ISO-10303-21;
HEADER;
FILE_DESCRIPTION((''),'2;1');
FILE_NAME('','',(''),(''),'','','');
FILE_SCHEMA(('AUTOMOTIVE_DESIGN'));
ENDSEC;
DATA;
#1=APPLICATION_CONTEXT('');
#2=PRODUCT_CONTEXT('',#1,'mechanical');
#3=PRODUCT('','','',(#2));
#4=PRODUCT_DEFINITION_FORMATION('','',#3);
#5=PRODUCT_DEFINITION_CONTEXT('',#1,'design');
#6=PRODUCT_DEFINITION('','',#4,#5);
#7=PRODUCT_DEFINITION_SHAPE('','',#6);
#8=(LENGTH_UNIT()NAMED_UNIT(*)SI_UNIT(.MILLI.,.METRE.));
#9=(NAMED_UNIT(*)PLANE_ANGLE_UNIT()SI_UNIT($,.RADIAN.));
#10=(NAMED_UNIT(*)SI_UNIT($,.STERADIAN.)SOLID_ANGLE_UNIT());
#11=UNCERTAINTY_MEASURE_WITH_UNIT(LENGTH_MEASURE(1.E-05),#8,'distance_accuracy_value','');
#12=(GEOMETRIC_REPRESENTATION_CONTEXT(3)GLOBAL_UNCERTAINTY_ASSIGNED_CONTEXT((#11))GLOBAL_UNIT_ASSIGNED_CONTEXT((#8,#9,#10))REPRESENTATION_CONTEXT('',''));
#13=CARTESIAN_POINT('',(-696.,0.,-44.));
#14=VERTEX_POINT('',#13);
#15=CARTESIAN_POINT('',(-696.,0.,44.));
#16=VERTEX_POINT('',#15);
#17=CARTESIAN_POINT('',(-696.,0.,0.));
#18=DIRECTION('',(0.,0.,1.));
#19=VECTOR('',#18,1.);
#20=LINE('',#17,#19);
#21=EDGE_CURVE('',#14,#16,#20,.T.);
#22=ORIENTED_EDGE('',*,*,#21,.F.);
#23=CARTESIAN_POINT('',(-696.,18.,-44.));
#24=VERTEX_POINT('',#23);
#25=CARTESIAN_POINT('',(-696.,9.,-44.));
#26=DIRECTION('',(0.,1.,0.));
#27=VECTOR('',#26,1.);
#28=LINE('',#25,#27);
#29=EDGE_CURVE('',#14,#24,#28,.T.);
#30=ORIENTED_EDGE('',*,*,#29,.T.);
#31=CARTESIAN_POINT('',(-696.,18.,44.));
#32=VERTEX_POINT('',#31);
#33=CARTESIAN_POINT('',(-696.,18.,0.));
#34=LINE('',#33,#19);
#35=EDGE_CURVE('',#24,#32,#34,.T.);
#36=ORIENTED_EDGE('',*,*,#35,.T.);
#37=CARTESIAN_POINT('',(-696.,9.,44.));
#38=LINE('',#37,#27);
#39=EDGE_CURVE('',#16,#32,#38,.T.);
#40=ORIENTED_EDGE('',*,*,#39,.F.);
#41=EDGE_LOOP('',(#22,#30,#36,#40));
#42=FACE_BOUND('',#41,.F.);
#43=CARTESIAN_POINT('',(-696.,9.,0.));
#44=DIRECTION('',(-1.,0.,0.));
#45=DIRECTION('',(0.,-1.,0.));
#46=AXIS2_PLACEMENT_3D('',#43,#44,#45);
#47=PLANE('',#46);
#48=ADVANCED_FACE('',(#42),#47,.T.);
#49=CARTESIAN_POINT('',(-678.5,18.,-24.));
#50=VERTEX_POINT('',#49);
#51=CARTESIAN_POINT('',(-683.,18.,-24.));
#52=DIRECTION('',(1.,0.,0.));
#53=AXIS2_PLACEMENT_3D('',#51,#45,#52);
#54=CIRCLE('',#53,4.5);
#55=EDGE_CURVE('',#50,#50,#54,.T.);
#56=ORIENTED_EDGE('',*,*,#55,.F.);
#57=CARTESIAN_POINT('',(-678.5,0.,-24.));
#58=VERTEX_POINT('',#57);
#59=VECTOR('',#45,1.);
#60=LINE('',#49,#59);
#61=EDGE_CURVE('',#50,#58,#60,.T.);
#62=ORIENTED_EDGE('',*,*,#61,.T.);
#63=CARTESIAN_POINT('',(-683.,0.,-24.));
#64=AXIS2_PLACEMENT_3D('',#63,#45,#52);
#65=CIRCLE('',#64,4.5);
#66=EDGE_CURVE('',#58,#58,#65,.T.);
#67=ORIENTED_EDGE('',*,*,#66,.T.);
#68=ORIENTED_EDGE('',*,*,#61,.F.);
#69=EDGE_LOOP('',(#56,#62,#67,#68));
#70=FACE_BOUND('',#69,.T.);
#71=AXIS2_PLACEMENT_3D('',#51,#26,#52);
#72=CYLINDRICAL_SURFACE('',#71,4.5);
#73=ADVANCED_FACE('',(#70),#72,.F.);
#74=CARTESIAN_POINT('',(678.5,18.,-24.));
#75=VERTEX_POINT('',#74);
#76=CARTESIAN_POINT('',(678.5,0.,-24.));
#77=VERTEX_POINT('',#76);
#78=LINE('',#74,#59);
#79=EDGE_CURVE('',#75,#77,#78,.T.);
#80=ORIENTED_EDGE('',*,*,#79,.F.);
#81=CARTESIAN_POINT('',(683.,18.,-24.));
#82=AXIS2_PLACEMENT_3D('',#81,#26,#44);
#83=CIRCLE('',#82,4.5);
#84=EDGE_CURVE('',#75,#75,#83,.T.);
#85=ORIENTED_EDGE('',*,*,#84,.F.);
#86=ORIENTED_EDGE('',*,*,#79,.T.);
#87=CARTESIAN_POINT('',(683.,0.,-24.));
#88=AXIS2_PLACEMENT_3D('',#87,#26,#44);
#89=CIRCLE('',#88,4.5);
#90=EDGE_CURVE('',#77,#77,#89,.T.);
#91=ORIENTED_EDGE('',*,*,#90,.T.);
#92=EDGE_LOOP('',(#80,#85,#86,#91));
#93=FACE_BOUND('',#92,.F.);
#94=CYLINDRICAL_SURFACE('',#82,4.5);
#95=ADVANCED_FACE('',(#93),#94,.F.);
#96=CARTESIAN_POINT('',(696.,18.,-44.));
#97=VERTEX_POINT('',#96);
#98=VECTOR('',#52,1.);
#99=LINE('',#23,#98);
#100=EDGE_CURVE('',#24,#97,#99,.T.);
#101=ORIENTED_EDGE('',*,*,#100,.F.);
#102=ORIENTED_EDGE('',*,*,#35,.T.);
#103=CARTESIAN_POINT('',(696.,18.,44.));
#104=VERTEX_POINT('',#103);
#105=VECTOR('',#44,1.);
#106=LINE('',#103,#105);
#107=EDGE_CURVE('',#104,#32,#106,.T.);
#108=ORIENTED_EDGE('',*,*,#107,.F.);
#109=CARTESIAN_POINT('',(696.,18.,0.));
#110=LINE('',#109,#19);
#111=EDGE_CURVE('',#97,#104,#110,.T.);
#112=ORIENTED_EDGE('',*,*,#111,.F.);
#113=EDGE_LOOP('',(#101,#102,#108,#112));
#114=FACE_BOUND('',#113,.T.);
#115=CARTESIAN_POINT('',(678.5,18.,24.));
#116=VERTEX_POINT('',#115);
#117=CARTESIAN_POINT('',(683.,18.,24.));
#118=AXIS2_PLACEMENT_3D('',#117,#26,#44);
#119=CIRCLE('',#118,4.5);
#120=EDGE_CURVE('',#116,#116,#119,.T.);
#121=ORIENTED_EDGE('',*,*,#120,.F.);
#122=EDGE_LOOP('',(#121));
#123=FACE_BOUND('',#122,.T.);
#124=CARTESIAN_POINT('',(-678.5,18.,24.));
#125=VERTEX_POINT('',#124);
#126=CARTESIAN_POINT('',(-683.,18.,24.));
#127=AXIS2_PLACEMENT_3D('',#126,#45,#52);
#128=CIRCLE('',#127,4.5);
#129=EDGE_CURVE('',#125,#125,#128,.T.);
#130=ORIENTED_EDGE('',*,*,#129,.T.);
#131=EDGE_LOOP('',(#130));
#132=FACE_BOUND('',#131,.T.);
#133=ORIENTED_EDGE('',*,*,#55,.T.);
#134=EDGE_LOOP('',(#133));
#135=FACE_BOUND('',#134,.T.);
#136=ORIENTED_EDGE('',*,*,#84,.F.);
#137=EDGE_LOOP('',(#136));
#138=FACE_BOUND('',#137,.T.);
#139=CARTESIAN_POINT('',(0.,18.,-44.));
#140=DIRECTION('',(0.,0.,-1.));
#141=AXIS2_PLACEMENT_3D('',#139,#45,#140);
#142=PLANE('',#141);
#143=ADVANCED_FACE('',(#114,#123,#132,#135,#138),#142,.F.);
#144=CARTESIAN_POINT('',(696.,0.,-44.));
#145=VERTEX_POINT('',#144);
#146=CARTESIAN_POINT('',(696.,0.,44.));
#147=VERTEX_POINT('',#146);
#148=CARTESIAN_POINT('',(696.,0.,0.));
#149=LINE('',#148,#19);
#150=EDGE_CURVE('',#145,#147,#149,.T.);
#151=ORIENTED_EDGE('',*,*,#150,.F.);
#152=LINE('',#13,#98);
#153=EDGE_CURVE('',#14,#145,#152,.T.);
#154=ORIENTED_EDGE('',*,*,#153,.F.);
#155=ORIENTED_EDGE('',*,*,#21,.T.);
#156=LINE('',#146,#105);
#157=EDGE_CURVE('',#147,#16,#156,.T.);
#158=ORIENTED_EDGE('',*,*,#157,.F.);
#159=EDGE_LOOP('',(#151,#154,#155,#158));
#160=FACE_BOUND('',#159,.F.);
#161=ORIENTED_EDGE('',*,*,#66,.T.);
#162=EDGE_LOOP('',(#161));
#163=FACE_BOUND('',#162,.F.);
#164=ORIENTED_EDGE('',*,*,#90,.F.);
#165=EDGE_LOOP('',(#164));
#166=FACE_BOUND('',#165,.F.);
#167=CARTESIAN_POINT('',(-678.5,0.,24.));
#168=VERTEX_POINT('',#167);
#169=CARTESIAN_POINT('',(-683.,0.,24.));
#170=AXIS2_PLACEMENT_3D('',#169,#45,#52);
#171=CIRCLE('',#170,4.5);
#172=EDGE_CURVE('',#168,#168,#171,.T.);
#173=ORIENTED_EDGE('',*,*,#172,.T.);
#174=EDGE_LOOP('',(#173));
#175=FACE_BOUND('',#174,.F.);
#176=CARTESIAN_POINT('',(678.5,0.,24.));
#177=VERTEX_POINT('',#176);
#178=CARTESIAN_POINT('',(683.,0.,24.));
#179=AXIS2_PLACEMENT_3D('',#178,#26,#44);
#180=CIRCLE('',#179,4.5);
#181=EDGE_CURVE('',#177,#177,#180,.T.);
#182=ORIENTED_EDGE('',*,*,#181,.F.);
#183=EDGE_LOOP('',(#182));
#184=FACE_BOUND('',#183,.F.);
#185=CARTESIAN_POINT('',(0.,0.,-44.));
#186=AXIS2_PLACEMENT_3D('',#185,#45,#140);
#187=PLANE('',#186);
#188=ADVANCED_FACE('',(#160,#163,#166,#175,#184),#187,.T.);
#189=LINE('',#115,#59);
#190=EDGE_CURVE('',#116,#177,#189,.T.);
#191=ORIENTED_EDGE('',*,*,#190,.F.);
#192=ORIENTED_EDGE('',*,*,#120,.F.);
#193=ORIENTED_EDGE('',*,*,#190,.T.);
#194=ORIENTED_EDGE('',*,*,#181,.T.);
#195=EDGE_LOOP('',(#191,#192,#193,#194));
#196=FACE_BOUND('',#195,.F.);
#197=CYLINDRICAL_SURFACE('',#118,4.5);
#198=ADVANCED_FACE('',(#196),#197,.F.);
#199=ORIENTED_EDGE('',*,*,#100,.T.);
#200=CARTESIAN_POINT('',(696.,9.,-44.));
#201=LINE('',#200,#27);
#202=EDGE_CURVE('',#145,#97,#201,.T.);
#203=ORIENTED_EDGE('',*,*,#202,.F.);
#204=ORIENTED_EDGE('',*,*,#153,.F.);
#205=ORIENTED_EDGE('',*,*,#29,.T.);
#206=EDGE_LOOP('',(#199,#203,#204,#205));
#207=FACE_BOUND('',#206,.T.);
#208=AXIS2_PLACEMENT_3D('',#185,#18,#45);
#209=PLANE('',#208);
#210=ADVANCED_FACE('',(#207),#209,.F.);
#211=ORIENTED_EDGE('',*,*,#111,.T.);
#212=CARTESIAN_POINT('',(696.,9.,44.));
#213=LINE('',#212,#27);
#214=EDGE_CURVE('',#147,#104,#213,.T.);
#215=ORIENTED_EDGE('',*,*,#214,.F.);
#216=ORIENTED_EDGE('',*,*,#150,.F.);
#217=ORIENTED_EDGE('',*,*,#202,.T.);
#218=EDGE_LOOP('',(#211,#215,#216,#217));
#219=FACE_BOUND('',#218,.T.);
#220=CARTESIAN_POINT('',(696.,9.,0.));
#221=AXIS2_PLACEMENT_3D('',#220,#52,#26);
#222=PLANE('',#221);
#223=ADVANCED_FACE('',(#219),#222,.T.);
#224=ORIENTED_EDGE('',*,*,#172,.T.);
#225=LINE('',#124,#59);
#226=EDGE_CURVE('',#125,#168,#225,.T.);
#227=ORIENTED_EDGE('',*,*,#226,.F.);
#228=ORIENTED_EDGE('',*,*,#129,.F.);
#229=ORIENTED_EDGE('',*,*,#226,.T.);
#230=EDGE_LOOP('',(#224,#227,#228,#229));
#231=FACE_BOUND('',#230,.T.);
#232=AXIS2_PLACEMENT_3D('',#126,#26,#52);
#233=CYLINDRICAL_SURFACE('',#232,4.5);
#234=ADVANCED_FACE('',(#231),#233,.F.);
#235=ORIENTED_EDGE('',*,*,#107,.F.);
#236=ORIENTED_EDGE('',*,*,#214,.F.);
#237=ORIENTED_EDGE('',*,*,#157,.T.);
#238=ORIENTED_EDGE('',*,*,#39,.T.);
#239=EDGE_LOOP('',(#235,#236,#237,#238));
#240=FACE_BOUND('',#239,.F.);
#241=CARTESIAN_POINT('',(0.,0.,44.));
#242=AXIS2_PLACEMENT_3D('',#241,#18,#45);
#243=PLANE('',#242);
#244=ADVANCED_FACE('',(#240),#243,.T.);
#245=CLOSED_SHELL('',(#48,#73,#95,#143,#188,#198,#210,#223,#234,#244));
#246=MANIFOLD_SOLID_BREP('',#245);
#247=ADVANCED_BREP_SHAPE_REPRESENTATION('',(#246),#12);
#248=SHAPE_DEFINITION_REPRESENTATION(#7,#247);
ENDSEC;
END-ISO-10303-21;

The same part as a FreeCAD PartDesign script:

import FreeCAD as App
import Part
import Sketcher
Q = App.Units.Quantity


def add_polygon(sketch, points):
    """Adds a closed chain of lines whose ends are joined by coincident constraints."""
    first, n = sketch.GeometryCount, len(points)
    for a, b in zip(points, points[1:] + points[:1]):
        sketch.addGeometry(Part.LineSegment(App.Vector(*a, 0), App.Vector(*b, 0)), False)
    for i in range(n):
        sketch.addConstraint(Sketcher.Constraint("Coincident", first + i, 2, first + (i + 1) % n, 1))

doc = App.newDocument("Part")
body = doc.addObject("PartDesign::Body", "Body")

# Sketch on YZ plane
sketch1 = body.newObject("Sketcher::SketchObject", "Sketch")
sketch1.AttachmentSupport = (doc.getObject("YZ_Plane"), [""])
sketch1.MapMode = "FlatFace"
add_polygon(sketch1, [(0, 44), (0, -44), (18, -44), (18, 44)])  # lines 0-3
sketch1.addConstraint(Sketcher.Constraint("Vertical", 0))
sketch1.addConstraint(Sketcher.Constraint("Horizontal", 1))
sketch1.addConstraint(Sketcher.Constraint("Vertical", 2))
sketch1.addConstraint(Sketcher.Constraint("Horizontal", 3))
sketch1.addConstraint(Sketcher.Constraint("Symmetric", 0, 2, 3, 2, -1, 1))
sketch1.addConstraint(Sketcher.Constraint("DistanceX", 1, 1, 1, 2, Q("18 mm")))
sketch1.addConstraint(Sketcher.Constraint("DistanceY", 0, 2, 0, 1, Q("88 mm")))
pad1 = body.newObject("PartDesign::Pad", "Pad")
pad1.Profile = sketch1
pad1.Length = 696

# Sketch on XZ plane
sketch2 = body.newObject("Sketcher::SketchObject", "Sketch001")
sketch2.AttachmentSupport = (doc.getObject("XZ_Plane"), [""])
sketch2.MapMode = "FlatFace"
sketch2.AttachmentOffset = App.Placement(App.Vector(0, 0, -18), App.Rotation())
sketch2.addGeometry(Part.Circle(App.Vector(683, 24, 0), App.Vector(0, 0, 1), 4.5), False)
sketch2.addGeometry(Part.Circle(App.Vector(683, -24, 0), App.Vector(0, 0, 1), 4.5), False)
sketch2.addConstraint(Sketcher.Constraint("Equal", 0, 1))
sketch2.addConstraint(Sketcher.Constraint("Symmetric", 0, 3, 1, 3, -1))
sketch2.addConstraint(Sketcher.Constraint("Diameter", 0, Q("9 mm")))
sketch2.addConstraint(Sketcher.Constraint("DistanceX", -1, 1, 0, 3, Q("683 mm")))
sketch2.addConstraint(Sketcher.Constraint("DistanceY", -1, 1, 0, 3, Q("24 mm")))
pocket1 = body.newObject("PartDesign::Pocket", "Pocket")
pocket1.Profile = sketch2
pocket1.Type = "ThroughAll"
pocket1.Reversed = True
body2 = doc.addObject("PartDesign::Body", "Body001")
doc.recompute()

body2.BaseFeature = body
doc.recompute()

mirroring = doc.addObject("Part::Mirroring", "Mirroring")
mirroring.Source = body
mirroring.Base = App.Vector(0, 0, 0)
mirroring.Normal = App.Vector(1, 0, 0)
body3 = doc.addObject("PartDesign::Body", "Body002")
body3.BaseFeature = mirroring
boolean = body2.newObject("PartDesign::Boolean", "Boolean")
boolean.Type = "Fuse"
boolean.addObjects([body3])
doc.recompute()
mirroring.Visibility = False

doc.recompute()
